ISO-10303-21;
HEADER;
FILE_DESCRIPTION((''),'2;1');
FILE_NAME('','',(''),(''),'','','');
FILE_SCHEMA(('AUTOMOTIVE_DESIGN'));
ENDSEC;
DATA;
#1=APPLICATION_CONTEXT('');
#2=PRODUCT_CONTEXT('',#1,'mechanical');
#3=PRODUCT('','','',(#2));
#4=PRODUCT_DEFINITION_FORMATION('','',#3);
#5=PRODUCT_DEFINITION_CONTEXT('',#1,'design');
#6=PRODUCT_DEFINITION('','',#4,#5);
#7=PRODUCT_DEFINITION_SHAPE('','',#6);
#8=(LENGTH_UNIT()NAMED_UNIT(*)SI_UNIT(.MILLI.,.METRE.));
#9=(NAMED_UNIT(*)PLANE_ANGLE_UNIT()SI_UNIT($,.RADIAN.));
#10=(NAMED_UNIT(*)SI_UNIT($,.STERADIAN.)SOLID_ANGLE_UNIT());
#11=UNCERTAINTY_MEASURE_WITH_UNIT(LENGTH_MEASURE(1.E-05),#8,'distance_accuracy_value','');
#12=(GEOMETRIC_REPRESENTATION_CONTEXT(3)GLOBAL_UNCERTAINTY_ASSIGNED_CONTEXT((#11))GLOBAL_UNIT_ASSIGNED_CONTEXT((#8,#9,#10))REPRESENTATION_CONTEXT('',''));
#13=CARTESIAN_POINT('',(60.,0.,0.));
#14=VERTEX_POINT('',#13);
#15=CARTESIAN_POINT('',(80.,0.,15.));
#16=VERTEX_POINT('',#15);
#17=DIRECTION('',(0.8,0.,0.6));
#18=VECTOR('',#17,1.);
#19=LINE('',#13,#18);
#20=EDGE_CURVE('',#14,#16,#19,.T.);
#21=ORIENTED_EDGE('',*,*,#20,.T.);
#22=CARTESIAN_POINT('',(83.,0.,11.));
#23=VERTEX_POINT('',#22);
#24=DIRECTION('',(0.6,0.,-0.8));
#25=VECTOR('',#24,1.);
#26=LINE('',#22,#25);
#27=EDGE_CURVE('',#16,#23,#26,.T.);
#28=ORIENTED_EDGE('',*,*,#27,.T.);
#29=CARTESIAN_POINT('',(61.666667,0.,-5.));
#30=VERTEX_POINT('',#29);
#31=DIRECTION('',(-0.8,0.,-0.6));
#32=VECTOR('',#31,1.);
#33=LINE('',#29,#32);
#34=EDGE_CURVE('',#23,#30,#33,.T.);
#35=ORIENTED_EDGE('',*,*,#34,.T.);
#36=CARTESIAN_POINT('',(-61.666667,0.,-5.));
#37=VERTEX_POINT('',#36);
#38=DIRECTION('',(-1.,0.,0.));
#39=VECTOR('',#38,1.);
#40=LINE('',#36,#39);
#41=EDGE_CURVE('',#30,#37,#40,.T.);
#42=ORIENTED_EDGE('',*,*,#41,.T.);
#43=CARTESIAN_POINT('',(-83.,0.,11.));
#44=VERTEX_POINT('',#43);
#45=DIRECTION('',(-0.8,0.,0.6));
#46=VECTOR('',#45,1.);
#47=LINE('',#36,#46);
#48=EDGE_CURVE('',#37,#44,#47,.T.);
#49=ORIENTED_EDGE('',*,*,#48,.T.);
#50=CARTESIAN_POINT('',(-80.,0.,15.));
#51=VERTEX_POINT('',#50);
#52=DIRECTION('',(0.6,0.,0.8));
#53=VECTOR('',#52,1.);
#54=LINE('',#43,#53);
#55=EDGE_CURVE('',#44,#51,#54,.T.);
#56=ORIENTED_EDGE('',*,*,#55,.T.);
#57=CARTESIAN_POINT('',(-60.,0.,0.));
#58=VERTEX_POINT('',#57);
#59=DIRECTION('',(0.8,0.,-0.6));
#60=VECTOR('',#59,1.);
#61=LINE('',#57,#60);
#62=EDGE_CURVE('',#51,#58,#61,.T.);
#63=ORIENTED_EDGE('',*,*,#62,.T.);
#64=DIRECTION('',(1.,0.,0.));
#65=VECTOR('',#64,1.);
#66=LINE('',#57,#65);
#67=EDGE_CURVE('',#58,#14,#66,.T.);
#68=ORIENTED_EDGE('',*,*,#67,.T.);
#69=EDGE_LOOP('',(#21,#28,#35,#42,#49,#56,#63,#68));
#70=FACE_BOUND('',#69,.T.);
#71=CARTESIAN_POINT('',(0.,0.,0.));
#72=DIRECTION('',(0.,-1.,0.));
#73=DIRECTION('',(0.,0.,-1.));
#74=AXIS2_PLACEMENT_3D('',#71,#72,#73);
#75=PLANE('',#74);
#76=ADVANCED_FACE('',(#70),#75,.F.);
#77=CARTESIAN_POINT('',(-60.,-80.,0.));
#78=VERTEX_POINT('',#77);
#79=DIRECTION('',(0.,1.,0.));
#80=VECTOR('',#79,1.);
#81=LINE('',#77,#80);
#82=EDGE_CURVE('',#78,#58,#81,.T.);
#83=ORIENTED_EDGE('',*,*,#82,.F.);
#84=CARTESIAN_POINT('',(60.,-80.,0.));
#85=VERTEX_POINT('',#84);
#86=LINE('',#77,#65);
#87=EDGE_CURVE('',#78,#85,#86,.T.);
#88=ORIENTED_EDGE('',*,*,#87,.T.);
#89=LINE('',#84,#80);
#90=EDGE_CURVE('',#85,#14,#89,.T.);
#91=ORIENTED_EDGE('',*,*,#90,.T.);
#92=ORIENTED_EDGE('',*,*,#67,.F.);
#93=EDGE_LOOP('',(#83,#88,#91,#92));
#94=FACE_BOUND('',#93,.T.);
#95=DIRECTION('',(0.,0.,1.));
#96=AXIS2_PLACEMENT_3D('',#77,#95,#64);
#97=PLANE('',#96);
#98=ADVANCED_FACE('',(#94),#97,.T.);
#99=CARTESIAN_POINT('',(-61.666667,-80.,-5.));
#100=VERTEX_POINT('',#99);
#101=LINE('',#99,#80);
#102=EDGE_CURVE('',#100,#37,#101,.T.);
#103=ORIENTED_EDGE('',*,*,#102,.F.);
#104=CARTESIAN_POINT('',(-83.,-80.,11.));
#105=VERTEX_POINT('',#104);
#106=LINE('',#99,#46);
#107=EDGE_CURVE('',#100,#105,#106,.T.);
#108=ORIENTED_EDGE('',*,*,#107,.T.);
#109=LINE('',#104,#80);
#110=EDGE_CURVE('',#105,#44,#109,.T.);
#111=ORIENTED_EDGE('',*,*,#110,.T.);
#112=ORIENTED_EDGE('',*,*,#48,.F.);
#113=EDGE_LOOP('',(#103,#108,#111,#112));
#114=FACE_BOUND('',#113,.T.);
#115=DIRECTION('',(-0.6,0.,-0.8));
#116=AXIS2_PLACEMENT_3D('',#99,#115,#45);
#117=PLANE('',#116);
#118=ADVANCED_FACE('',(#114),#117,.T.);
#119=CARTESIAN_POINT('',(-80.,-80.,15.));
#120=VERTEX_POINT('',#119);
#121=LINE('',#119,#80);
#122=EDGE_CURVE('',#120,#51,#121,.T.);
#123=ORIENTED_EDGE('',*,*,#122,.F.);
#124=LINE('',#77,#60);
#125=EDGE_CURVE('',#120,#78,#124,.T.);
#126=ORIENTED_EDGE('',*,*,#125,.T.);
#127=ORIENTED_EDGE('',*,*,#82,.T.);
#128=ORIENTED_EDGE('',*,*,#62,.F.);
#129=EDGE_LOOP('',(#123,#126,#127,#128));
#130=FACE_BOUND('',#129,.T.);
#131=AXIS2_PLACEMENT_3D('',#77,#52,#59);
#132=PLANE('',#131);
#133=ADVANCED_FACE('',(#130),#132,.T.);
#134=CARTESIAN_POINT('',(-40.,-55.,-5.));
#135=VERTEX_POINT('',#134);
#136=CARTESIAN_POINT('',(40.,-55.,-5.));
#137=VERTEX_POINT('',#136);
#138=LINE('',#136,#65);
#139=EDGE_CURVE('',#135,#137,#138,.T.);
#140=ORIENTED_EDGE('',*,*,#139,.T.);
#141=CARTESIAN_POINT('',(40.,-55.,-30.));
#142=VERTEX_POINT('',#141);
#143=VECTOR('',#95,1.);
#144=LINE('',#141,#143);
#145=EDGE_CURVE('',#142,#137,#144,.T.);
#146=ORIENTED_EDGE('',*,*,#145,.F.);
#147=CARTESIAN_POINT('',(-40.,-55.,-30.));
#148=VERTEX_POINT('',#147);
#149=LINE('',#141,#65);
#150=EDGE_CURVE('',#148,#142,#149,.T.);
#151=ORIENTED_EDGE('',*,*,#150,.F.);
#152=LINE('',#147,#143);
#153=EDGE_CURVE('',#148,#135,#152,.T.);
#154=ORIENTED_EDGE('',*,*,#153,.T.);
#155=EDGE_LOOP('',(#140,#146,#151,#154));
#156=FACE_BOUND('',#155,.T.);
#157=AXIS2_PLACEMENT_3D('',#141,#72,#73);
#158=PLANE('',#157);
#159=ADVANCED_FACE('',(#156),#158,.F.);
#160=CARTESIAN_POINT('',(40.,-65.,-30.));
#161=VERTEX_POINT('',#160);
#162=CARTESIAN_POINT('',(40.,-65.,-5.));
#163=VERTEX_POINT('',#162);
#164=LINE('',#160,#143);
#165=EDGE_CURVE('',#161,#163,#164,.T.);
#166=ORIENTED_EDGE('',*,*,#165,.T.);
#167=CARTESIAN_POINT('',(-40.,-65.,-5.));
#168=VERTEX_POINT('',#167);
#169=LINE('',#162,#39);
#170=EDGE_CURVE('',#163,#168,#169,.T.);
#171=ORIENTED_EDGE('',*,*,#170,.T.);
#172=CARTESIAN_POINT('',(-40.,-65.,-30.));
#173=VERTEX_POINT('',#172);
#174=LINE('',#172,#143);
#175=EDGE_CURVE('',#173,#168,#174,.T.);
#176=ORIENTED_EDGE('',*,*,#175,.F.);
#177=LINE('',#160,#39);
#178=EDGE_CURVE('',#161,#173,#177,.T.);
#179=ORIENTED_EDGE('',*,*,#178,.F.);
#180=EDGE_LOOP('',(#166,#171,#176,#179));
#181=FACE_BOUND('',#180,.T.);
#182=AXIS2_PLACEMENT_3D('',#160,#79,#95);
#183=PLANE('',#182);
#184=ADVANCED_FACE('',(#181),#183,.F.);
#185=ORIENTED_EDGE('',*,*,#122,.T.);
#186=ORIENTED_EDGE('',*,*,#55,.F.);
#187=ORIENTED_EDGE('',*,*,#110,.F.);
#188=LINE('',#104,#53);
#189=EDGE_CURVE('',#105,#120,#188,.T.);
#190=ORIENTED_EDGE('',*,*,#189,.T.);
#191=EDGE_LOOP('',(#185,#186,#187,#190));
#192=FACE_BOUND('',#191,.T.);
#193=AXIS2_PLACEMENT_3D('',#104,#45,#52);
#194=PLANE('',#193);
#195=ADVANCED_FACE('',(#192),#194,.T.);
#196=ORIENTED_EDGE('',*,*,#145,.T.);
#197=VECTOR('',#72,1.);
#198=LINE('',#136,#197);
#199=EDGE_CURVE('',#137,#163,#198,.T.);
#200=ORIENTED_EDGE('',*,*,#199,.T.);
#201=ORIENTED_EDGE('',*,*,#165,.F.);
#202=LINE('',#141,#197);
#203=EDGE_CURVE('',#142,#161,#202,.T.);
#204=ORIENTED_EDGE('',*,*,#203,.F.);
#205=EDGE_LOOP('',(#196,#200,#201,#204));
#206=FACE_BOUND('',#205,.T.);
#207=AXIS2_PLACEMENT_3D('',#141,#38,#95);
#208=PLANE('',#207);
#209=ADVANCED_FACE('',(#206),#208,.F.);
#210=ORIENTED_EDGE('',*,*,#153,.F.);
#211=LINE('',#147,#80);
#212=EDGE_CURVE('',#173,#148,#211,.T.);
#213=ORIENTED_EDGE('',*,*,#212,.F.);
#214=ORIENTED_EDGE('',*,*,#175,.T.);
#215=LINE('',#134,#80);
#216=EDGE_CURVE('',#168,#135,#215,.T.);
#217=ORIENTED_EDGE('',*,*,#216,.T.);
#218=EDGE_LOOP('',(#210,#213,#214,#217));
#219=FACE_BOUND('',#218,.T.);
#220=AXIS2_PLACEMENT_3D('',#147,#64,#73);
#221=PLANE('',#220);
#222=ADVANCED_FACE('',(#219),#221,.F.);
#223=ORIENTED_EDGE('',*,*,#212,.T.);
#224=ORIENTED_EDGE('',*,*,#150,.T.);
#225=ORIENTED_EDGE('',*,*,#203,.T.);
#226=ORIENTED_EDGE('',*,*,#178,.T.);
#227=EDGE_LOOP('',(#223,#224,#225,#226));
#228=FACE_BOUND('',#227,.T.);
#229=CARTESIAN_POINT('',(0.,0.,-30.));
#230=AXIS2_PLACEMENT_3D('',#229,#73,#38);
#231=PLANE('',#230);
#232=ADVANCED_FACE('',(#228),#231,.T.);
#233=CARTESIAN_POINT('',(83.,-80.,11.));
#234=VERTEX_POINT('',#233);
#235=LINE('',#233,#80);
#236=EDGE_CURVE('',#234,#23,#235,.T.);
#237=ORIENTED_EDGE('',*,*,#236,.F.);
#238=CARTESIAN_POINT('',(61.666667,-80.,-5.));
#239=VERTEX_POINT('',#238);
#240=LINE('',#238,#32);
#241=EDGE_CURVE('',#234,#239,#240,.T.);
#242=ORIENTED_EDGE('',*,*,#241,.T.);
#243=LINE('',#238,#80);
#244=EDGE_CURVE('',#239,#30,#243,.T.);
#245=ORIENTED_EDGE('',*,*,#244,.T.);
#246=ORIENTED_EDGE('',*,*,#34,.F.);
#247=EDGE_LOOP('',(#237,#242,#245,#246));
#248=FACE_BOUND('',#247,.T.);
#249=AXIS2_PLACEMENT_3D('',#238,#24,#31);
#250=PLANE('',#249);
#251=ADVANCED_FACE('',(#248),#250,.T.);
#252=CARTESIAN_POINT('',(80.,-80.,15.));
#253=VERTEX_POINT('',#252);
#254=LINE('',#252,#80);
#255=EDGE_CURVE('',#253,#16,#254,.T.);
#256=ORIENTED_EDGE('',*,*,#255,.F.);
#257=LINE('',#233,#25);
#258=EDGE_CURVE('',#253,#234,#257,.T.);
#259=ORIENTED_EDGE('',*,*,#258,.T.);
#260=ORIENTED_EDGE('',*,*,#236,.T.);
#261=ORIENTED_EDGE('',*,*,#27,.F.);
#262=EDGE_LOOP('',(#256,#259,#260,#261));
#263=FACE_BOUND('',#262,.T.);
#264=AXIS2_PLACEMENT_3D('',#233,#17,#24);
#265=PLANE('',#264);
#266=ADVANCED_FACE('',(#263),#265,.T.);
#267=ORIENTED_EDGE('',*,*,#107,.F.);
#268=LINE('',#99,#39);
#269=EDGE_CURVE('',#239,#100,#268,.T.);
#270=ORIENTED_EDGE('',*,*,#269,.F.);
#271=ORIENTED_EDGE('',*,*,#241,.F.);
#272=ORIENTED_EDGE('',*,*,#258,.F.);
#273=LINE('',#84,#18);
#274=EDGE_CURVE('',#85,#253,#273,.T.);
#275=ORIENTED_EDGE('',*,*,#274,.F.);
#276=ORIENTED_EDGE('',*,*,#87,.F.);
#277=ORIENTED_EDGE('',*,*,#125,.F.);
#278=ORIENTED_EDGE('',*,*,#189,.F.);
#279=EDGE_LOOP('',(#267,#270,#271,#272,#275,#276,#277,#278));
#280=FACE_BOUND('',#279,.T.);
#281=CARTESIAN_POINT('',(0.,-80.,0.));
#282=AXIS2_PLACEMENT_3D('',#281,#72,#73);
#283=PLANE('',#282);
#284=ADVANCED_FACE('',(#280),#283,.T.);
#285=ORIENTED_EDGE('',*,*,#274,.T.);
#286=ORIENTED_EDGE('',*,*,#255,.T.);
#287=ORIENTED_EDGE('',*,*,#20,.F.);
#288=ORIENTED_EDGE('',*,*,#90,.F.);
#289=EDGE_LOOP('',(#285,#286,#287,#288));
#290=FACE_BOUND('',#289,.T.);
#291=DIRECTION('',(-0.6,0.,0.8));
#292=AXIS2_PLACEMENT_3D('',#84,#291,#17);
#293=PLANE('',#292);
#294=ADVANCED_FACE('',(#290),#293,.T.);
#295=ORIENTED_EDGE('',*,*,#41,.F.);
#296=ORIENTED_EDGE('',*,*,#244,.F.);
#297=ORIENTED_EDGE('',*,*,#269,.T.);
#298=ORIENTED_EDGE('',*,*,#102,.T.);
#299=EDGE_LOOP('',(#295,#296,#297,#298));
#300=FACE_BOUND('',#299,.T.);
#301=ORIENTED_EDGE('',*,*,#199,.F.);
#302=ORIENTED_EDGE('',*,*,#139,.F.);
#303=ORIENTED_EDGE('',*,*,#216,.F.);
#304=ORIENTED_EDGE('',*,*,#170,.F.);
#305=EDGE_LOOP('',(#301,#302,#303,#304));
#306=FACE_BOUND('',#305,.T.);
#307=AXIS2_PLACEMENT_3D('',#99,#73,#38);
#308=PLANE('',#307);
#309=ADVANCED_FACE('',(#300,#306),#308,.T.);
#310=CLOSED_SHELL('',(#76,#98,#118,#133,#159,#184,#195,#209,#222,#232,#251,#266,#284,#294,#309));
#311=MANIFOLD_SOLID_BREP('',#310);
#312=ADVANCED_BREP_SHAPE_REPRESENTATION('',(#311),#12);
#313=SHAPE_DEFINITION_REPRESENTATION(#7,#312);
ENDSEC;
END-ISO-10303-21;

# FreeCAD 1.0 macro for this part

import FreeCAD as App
import Part
import Sketcher

V = App.Vector

doc = App.newDocument("Part")
body = doc.addObject("PartDesign::Body", "Body")

# Sketch on XZ plane
sketch1 = body.newObject("Sketcher::SketchObject", "Sketch")
sketch1.AttachmentSupport = (doc.getObject("XZ_Plane"), [""])
sketch1.MapMode = "FlatFace"
sketch1.addGeometry(Part.LineSegment(V(-60, 0, 0), V(60, 0, 0)), False)
sketch1.addGeometry(Part.LineSegment(V(60, 0, 0), V(80, 15, 0)), False)
sketch1.addGeometry(Part.LineSegment(V(80, 15, 0), V(83, 11, 0)), False)
sketch1.addGeometry(Part.LineSegment(V(83, 11, 0), V(61.666667, -5, 0)), False)
sketch1.addGeometry(Part.LineSegment(V(61.666667, -5, 0), V(-61.666667, -5, 0)), False)
sketch1.addGeometry(Part.LineSegment(V(-61.666667, -5, 0), V(-83, 11, 0)), False)
sketch1.addGeometry(Part.LineSegment(V(-83, 11, 0), V(-80, 15, 0)), False)
sketch1.addGeometry(Part.LineSegment(V(-80, 15, 0), V(-60, 0, 0)), False)
sketch1.addConstraint(Sketcher.Constraint("Coincident", 0, 2, 1, 1))
sketch1.addConstraint(Sketcher.Constraint("Coincident", 1, 2, 2, 1))
sketch1.addConstraint(Sketcher.Constraint("Coincident", 2, 2, 3, 1))
sketch1.addConstraint(Sketcher.Constraint("Coincident", 3, 2, 4, 1))
sketch1.addConstraint(Sketcher.Constraint("Coincident", 4, 2, 5, 1))
sketch1.addConstraint(Sketcher.Constraint("Coincident", 5, 2, 6, 1))
sketch1.addConstraint(Sketcher.Constraint("Coincident", 6, 2, 7, 1))
sketch1.addConstraint(Sketcher.Constraint("Coincident", 7, 2, 0, 1))
sketch1.addConstraint(Sketcher.Constraint("Horizontal", 0))
sketch1.addConstraint(Sketcher.Constraint("Horizontal", 4))
sketch1.addConstraint(Sketcher.Constraint("Symmetric", 0, 2, 7, 2, -1, 1))
sketch1.addConstraint(Sketcher.Constraint("Symmetric", 2, 2, 5, 2, -2))
sketch1.addConstraint(Sketcher.Constraint("Symmetric", 1, 2, 6, 2, -2))
sketch1.addConstraint(Sketcher.Constraint("Perpendicular", 1, 2))
sketch1.addConstraint(Sketcher.Constraint("Perpendicular", 2, 3))
sketch1.addConstraint(Sketcher.Constraint("Perpendicular", 5, 6))
sketch1.addConstraint(Sketcher.Constraint("DistanceX", 0, 1, 0, 2, 120.0))
sketch1.addConstraint(Sketcher.Constraint("Distance", 1, 25.0))
sketch1.addConstraint(Sketcher.Constraint("Distance", 2, 5.0))
sketch1.addConstraint(Sketcher.Constraint("DistanceX", -1, 1, 1, 2, 80.0))
sketch1.addConstraint(Sketcher.Constraint("DistanceY", 3, 2, -1, 1, 5.0))
pad1 = body.newObject("PartDesign::Pad", "Pad")
pad1.Profile = sketch1
pad1.Length = 80

# Sketch on XY plane
sketch2 = body.newObject("Sketcher::SketchObject", "Sketch001")
sketch2.AttachmentSupport = (doc.getObject("XY_Plane"), [""])
sketch2.MapMode = "FlatFace"
sketch2.AttachmentOffset = App.Placement(V(0, 0, -5), App.Rotation())
sketch2.addGeometry(Part.LineSegment(V(40, -55, 0), V(40, -65, 0)), False)
sketch2.addGeometry(Part.LineSegment(V(40, -65, 0), V(-40, -65, 0)), False)
sketch2.addGeometry(Part.LineSegment(V(-40, -65, 0), V(-40, -55, 0)), False)
sketch2.addGeometry(Part.LineSegment(V(-40, -55, 0), V(40, -55, 0)), False)
sketch2.addConstraint(Sketcher.Constraint("Coincident", 0, 2, 1, 1))
sketch2.addConstraint(Sketcher.Constraint("Coincident", 1, 2, 2, 1))
sketch2.addConstraint(Sketcher.Constraint("Coincident", 2, 2, 3, 1))
sketch2.addConstraint(Sketcher.Constraint("Coincident", 3, 2, 0, 1))
sketch2.addConstraint(Sketcher.Constraint("Vertical", 0))
sketch2.addConstraint(Sketcher.Constraint("Horizontal", 1))
sketch2.addConstraint(Sketcher.Constraint("Vertical", 2))
sketch2.addConstraint(Sketcher.Constraint("Horizontal", 3))
sketch2.addConstraint(Sketcher.Constraint("DistanceX", 1, 2, 1, 1, 80.0))
sketch2.addConstraint(Sketcher.Constraint("DistanceY", 0, 2, 0, 1, 10.0))
sketch2.addConstraint(Sketcher.Constraint("DistanceX", -1, 1, 0, 2, 40.0))
sketch2.addConstraint(Sketcher.Constraint("DistanceY", 0, 2, -1, 1, 65.0))
pad2 = body.newObject("PartDesign::Pad", "Pad001")
pad2.Profile = sketch2
pad2.Length = 25
pad2.Reversed = True

doc.recompute()
